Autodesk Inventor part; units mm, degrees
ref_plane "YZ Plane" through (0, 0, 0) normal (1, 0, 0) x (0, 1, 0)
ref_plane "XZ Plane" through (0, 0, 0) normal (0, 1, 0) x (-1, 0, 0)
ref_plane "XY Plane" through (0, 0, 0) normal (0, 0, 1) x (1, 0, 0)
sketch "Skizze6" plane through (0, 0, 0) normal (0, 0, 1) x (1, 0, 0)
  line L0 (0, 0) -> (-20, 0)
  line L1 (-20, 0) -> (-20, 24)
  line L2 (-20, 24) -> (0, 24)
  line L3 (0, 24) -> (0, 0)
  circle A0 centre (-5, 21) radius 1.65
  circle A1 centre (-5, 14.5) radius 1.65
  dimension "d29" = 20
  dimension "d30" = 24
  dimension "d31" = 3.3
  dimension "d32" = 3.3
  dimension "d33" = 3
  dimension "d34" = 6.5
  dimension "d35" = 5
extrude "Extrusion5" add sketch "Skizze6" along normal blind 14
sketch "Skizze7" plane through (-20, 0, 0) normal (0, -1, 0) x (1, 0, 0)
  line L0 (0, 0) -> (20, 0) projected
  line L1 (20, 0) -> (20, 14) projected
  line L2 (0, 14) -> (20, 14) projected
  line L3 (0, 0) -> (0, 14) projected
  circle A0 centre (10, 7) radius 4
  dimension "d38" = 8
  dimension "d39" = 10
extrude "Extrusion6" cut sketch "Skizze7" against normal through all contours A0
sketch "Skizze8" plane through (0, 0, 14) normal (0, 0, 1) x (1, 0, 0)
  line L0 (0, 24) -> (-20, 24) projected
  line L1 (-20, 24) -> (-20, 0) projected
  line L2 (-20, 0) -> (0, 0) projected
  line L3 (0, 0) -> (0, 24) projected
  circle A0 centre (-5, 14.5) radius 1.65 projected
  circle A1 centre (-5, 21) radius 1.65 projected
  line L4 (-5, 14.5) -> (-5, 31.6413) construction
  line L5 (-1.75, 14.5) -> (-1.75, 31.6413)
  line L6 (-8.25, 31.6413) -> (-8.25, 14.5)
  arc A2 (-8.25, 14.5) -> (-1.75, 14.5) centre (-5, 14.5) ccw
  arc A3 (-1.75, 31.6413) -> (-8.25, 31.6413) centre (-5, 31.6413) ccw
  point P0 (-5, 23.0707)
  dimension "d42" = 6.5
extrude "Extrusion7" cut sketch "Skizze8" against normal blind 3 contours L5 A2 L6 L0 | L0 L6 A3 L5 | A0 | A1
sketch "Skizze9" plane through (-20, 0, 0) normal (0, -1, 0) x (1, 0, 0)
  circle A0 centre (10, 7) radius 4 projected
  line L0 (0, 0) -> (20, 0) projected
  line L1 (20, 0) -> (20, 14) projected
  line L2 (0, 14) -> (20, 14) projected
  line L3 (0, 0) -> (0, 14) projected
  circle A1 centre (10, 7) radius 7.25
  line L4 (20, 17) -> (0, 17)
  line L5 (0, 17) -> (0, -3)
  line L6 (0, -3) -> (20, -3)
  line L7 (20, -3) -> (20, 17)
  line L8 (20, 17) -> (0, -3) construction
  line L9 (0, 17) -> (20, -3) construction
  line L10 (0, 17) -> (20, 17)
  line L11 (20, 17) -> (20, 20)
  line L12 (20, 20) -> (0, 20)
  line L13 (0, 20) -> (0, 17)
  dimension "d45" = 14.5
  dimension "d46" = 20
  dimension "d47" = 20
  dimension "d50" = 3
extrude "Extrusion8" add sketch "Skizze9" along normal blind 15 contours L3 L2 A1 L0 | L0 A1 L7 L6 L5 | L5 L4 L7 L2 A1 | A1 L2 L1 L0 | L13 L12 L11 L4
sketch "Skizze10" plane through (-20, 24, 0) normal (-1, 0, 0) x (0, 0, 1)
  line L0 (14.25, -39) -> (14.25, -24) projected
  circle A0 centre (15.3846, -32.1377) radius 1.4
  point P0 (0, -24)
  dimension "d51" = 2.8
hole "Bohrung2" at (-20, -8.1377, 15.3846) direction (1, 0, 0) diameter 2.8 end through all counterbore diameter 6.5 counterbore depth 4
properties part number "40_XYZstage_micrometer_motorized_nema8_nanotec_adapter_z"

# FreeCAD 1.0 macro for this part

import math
import FreeCAD as App
import Part
import Sketcher

V = App.Vector
Q = App.Units.Quantity


def add_polygon(sketch, points):
    """Adds a closed chain of lines whose ends are joined by coincident constraints."""
    first, n = sketch.GeometryCount, len(points)
    for a, b in zip(points, points[1:] + points[:1]):
        sketch.addGeometry(Part.LineSegment(App.Vector(*a, 0), App.Vector(*b, 0)), False)
    for i in range(n):
        sketch.addConstraint(Sketcher.Constraint("Coincident", first + i, 2, first + (i + 1) % n, 1))

doc = App.newDocument("Part")
body = doc.addObject("PartDesign::Body", "Body")

# Sketch on XY plane
sketch1 = doc.addObject("Sketcher::SketchObject", "Sketch")
body.addObject(sketch1)
sketch1.AttachmentSupport = (doc.XY_Plane, [""])
sketch1.MapMode = "FlatFace"
add_polygon(sketch1, [(-20, 0), (0, 0), (0, 24), (-20, 24)])  # lines 0-3
sketch1.addGeometry(Part.Circle(V(-5, 14.5, 0), V(0, 0, 1), 1.6), False)  # 4
sketch1.addGeometry(Part.Circle(V(-5, 21, 0), V(0, 0, 1), 1.6), False)  # 5
sketch1.addConstraint([
    Sketcher.Constraint("Horizontal", 0),
    Sketcher.Constraint("Vertical", 1),
    Sketcher.Constraint("Horizontal", 2),
    Sketcher.Constraint("Vertical", 3),
    Sketcher.Constraint("Coincident", 0, 2, -1, 1),
    Sketcher.Constraint("Equal", 4, 5),
    Sketcher.Constraint("Vertical", 4, 3, 5, 3),
    Sketcher.Constraint("Diameter", 4, Q("3.3 mm")),
    Sketcher.Constraint("DistanceX", 0, 1, 0, 2, Q("20 mm")),
    Sketcher.Constraint("DistanceY", 1, 1, 1, 2, Q("24 mm")),
    Sketcher.Constraint("DistanceX", 4, 3, -1, 1, Q("5 mm")),
    Sketcher.Constraint("DistanceY", 5, 3, 1, 2, Q("3 mm")),
    Sketcher.Constraint("DistanceY", 4, 3, 5, 3, Q("6.5 mm")),
])
pad1 = doc.addObject("PartDesign::Pad", "Pad")
body.addObject(pad1)
pad1.Profile = sketch1
pad1.Length = 14

# Sketch on XZ plane
sketch2 = doc.addObject("Sketcher::SketchObject", "Sketch001")
body.addObject(sketch2)
sketch2.AttachmentSupport = (doc.XZ_Plane, [""])
sketch2.MapMode = "FlatFace"
sketch2.addGeometry(Part.Circle(V(-10, 7, 0), V(0, 0, 1), 4), False)
sketch2.addConstraint([
    Sketcher.Constraint("Diameter", 0, Q("8 mm")),
    Sketcher.Constraint("DistanceX", 0, 3, -1, 1, Q("10 mm")),
    Sketcher.Constraint("DistanceY", -1, 1, 0, 3, Q("7 mm")),
])
pocket1 = doc.addObject("PartDesign::Pocket", "Pocket")
body.addObject(pocket1)
pocket1.Profile = sketch2
pocket1.Type = "ThroughAll"

# Sketch on XY plane
sketch3 = doc.addObject("Sketcher::SketchObject", "Sketch002")
body.addObject(sketch3)
sketch3.AttachmentSupport = (doc.XY_Plane, [""])
sketch3.MapMode = "FlatFace"
sketch3.AttachmentOffset = App.Placement(V(0, 0, 14), App.Rotation())
sketch3.addGeometry([
    Part.LineSegment(V(-1.8, 14.5, 0), V(-1.8, 31.6, 0)),
    Part.ArcOfCircle(Part.Circle(V(-5, 31.6, 0), V(0, 0, 1), 3.2), math.radians(0), math.radians(180)),
    Part.LineSegment(V(-8.2, 31.6, 0), V(-8.2, 14.5, 0)),
    Part.ArcOfCircle(Part.Circle(V(-5, 14.5, 0), V(0, 0, 1), 3.2), math.radians(180), math.radians(360)),
], False)
sketch3.addConstraint([
    Sketcher.Constraint("Tangent", 0, 2, 1, 1),
    Sketcher.Constraint("Tangent", 1, 2, 2, 1),
    Sketcher.Constraint("Tangent", 2, 2, 3, 1),
    Sketcher.Constraint("Tangent", 3, 2, 0, 1),
    Sketcher.Constraint("Vertical", 0),
    Sketcher.Constraint("Vertical", 2),
    Sketcher.Constraint("Radius", 1, Q("3.25 mm")),
    Sketcher.Constraint("DistanceX", 1, 3, -1, 1, Q("5 mm")),
    Sketcher.Constraint("DistanceY", -1, 1, 3, 3, Q("14.5 mm")),
    Sketcher.Constraint("DistanceY", 0, 1, 0, 2, Q("17.1413 mm")),
])
pocket2 = doc.addObject("PartDesign::Pocket", "Pocket001")
body.addObject(pocket2)
pocket2.Profile = sketch3
pocket2.Length = 3

# Sketch on XZ plane
sketch4 = doc.addObject("Sketcher::SketchObject", "Sketch003")
body.addObject(sketch4)
sketch4.AttachmentSupport = (doc.XZ_Plane, [""])
sketch4.MapMode = "FlatFace"
add_polygon(sketch4, [(-20, -3), (0, -3), (0, 20), (-20, 20)])  # lines 0-3
sketch4.addGeometry(Part.Circle(V(-10, 7, 0), V(0, 0, 1), 7), False)  # 4
sketch4.addConstraint([
    Sketcher.Constraint("Horizontal", 0),
    Sketcher.Constraint("Vertical", 1),
    Sketcher.Constraint("Horizontal", 2),
    Sketcher.Constraint("Vertical", 3),
    Sketcher.Constraint("PointOnObject", 0, 2, -2),
    Sketcher.Constraint("Diameter", 4, Q("14.5 mm")),
    Sketcher.Constraint("DistanceX", 0, 1, 0, 2, Q("20 mm")),
    Sketcher.Constraint("DistanceY", 0, 2, -1, 1, Q("3 mm")),
    Sketcher.Constraint("DistanceY", -1, 1, 1, 2, Q("20 mm")),
    Sketcher.Constraint("DistanceX", 4, 3, -1, 1, Q("10 mm")),
    Sketcher.Constraint("DistanceY", -1, 1, 4, 3, Q("7 mm")),
])
pad2 = doc.addObject("PartDesign::Pad", "Pad001")
body.addObject(pad2)
pad2.Profile = sketch4
pad2.Length = 15

# Sketch on YZ plane
sketch5 = doc.addObject("Sketcher::SketchObject", "Sketch004")
body.addObject(sketch5)
sketch5.AttachmentSupport = (doc.YZ_Plane, [""])
sketch5.MapMode = "FlatFace"
sketch5.AttachmentOffset = App.Placement(V(0, 0, -20), App.Rotation())
sketch5.addGeometry(Part.Circle(V(-8.1, 15.4, 0), V(0, 0, 1), 1.4), False)
sketch5.addConstraint([
    Sketcher.Constraint("Diameter", 0, Q("2.8 mm")),
    Sketcher.Constraint("DistanceX", 0, 3, -1, 1, Q("8.1377 mm")),
    Sketcher.Constraint("DistanceY", -1, 1, 0, 3, Q("15.3846 mm")),
])
doc.recompute()
hole = doc.addObject("PartDesign::Hole", "Hole")
body.addObject(hole)
hole.Profile = sketch5
hole.ThreadType = "None"
hole.Diameter = 2.8
hole.DepthType = "ThroughAll"
hole.HoleCutType = "Counterbore"
hole.HoleCutDiameter = 6.5
hole.HoleCutDepth = 4
hole.Reversed = True

doc.recompute()
